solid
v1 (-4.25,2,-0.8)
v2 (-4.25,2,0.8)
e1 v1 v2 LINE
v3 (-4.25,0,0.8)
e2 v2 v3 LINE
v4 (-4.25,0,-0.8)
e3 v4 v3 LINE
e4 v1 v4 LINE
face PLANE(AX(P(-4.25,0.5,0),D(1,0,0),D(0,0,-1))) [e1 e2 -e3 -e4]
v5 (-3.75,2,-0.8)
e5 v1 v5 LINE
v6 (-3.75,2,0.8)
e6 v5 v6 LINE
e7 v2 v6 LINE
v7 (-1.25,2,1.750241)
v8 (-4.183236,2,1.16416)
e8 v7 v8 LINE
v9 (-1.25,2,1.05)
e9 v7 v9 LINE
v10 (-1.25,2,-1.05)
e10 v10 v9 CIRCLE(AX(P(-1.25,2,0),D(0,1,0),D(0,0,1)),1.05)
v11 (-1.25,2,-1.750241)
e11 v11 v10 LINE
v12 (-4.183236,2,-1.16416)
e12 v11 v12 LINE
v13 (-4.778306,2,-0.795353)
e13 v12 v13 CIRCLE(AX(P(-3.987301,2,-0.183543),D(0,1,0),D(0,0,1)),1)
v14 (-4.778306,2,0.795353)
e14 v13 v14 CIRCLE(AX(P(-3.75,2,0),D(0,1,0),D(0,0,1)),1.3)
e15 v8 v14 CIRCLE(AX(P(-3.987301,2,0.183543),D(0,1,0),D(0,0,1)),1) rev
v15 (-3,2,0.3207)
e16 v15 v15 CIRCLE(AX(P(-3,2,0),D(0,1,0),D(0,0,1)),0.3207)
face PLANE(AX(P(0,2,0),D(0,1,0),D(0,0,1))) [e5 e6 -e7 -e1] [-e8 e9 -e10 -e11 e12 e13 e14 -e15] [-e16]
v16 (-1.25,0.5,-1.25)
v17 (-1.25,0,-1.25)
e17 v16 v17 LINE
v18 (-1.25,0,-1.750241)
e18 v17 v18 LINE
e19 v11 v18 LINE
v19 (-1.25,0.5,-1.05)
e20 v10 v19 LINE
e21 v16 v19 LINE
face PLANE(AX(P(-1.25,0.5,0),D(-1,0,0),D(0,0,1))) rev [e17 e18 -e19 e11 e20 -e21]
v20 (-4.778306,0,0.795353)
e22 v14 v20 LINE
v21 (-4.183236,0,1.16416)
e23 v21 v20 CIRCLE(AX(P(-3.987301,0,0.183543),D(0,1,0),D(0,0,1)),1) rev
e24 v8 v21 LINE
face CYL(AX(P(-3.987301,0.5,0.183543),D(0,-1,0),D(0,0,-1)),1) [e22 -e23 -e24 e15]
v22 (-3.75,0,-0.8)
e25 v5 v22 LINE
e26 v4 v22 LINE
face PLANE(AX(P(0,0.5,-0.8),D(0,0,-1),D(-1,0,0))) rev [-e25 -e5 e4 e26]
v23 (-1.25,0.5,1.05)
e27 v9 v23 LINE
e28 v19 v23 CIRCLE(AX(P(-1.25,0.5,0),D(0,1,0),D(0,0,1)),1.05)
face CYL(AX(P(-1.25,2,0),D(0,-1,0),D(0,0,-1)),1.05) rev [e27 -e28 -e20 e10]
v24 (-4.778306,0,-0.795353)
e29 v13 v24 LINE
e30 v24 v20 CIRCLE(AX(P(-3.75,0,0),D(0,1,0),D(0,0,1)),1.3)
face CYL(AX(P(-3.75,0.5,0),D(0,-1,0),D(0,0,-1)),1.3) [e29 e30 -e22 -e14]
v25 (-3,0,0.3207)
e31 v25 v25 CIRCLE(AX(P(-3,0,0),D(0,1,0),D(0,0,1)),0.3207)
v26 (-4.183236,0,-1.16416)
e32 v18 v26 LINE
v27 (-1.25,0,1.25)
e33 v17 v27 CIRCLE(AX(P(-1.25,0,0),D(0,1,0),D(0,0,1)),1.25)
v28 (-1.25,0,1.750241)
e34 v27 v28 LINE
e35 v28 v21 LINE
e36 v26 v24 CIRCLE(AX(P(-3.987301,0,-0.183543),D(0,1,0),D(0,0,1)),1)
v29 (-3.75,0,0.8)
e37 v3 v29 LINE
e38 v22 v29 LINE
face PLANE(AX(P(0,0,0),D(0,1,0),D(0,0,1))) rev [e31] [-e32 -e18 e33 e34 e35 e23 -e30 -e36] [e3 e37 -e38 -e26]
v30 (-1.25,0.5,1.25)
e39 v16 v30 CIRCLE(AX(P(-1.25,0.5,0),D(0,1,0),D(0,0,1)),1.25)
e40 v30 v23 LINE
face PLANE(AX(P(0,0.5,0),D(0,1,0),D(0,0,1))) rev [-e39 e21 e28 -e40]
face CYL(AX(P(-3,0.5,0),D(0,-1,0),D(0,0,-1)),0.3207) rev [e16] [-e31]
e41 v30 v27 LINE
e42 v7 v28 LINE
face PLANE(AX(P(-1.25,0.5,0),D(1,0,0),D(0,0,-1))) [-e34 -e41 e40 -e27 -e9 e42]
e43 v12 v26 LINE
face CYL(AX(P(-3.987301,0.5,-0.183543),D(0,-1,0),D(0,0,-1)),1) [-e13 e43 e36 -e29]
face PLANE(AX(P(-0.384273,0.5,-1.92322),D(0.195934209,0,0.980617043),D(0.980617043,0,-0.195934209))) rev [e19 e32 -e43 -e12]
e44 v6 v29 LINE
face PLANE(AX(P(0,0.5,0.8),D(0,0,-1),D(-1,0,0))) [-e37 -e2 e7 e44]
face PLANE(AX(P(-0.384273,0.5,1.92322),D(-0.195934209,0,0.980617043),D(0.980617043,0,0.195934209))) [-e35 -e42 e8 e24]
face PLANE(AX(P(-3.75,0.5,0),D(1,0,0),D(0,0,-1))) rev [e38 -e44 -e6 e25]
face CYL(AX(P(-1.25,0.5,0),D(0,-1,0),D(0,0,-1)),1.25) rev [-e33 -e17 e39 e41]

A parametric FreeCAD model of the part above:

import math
import FreeCAD as App
import Part
import Sketcher
from FreeCAD import Vector
Q = App.Units.Quantity


def add_polygon(sketch, points):
    """Adds a closed chain of lines whose ends are joined by coincident constraints."""
    first, n = sketch.GeometryCount, len(points)
    for a, b in zip(points, points[1:] + points[:1]):
        sketch.addGeometry(Part.LineSegment(App.Vector(*a, 0), App.Vector(*b, 0)), False)
    for i in range(n):
        sketch.addConstraint(Sketcher.Constraint("Coincident", first + i, 2, first + (i + 1) % n, 1))

doc = App.newDocument("Part")
body = doc.addObject("PartDesign::Body", "Body")

# Sketch on XZ plane
sketch1 = body.newObject("Sketcher::SketchObject", "Sketch")
sketch1.AttachmentSupport = (doc.getObject("XZ_Plane"), [""])
sketch1.MapMode = "FlatFace"
sketch1.addGeometry(Part.LineSegment(Vector(-1.25, -1.25, 0), Vector(-1.25, -1.750241, 0)), False)  # 0
sketch1.addGeometry(Part.LineSegment(Vector(-1.25, -1.750241, 0), Vector(-4.183236, -1.16416, 0)), False)  # 1
sketch1.addGeometry(Part.ArcOfCircle(Part.Circle(Vector(-3.987301, -0.183543, 0), Vector(0, 0, 1), 1), math.radians(-142.279524), math.radians(-101.299303)), False)  # 2
sketch1.addGeometry(Part.ArcOfCircle(Part.Circle(Vector(-3.75, 0, 0), Vector(0, 0, 1), 1.3), math.radians(142.279524), math.radians(217.720476)), False)  # 3
sketch1.addGeometry(Part.ArcOfCircle(Part.Circle(Vector(-3.987301, 0.183543, 0), Vector(0, 0, 1), 1), math.radians(101.299303), math.radians(142.279524)), False)  # 4
sketch1.addGeometry(Part.LineSegment(Vector(-4.183236, 1.16416, 0), Vector(-1.25, 1.750241, 0)), False)  # 5
sketch1.addGeometry(Part.LineSegment(Vector(-1.25, 1.750241, 0), Vector(-1.25, 1.25, 0)), False)  # 6
sketch1.addGeometry(Part.ArcOfCircle(Part.Circle(Vector(-1.25, 0, 0), Vector(0, 0, 1), 1.25), math.radians(90), math.radians(270)), False)  # 7
add_polygon(sketch1, [(-3.75, 0.8), (-4.25, 0.8), (-4.25, -0.8), (-3.75, -0.8)])  # lines 8-11
sketch1.addGeometry(Part.Circle(Vector(-3, 0, 0), Vector(0, 0, 1), 0.3207), False)  # 12
sketch1.addConstraint([
    Sketcher.Constraint("Coincident", 0, 2, 1, 1),
    Sketcher.Constraint("Tangent", 1, 2, 2, 2),
    Sketcher.Constraint("Tangent", 2, 1, 3, 2),
    Sketcher.Constraint("Tangent", 3, 1, 4, 2),
    Sketcher.Constraint("Tangent", 4, 1, 5, 1),
    Sketcher.Constraint("Coincident", 5, 2, 6, 1),
    Sketcher.Constraint("Coincident", 6, 2, 7, 1),
    Sketcher.Constraint("Coincident", 7, 2, 0, 1),
    Sketcher.Constraint("Vertical", 0),
    Sketcher.Constraint("Vertical", 6),
    Sketcher.Constraint("Horizontal", 8),
    Sketcher.Constraint("Vertical", 9),
    Sketcher.Constraint("Horizontal", 10),
    Sketcher.Constraint("Vertical", 11),
    Sketcher.Constraint("Equal", 2, 4),
    Sketcher.Constraint("Symmetric", 2, 3, 4, 3, -1),
    Sketcher.Constraint("Symmetric", 0, 2, 5, 2, -1),
    Sketcher.Constraint("PointOnObject", 7, 3, -1),
    Sketcher.Constraint("PointOnObject", 12, 3, -1),
    Sketcher.Constraint("Vertical", 7, 3, 0, 2),
    Sketcher.Constraint("Vertical", 3, 3, 10, 2),
    Sketcher.Constraint("Radius", 2, Q("1 mm")),
    Sketcher.Constraint("Radius", 3, Q("1.3 mm")),
    Sketcher.Constraint("Radius", 7, Q("1.25 mm")),
    Sketcher.Constraint("DistanceX", 8, 2, 8, 1, Q("0.5 mm")),
    Sketcher.Constraint("DistanceY", 9, 2, 9, 1, Q("1.6 mm")),
    Sketcher.Constraint("DistanceX", 12, 3, -1, 1, Q("3 mm")),
    Sketcher.Constraint("Diameter", 12, Q("0.6414 mm")),
    Sketcher.Constraint("DistanceY", -1, 1, 8, 2, Q("0.8 mm")),
    Sketcher.Constraint("DistanceX", 3, 3, 7, 3, Q("2.5 mm")),
    Sketcher.Constraint("DistanceX", 3, 3, -1, 1, Q("3.75 mm")),
    Sketcher.Constraint("DistanceY", 0, 2, 0, 1, Q("0.500241 mm")),
    Sketcher.Constraint("DistanceX", 2, 3, -1, 1, Q("3.987301 mm")),
])
pad1 = body.newObject("PartDesign::Pad", "Pad")
pad1.Profile = sketch1
pad1.Length = 0.5
pad1.Reversed = True

# Sketch on XZ plane
sketch2 = body.newObject("Sketcher::SketchObject", "Sketch001")
sketch2.AttachmentSupport = (doc.getObject("XZ_Plane"), [""])
sketch2.MapMode = "FlatFace"
sketch2.AttachmentOffset = App.Placement(Vector(0, 0, -0.5), App.Rotation())
sketch2.addGeometry(Part.LineSegment(Vector(-1.25, -1.05, 0), Vector(-1.25, -1.750241, 0)), False)  # 0
sketch2.addGeometry(Part.LineSegment(Vector(-1.25, -1.750241, 0), Vector(-4.183236, -1.16416, 0)), False)  # 1
sketch2.addGeometry(Part.ArcOfCircle(Part.Circle(Vector(-3.987301, -0.183543, 0), Vector(0, 0, 1), 1), math.radians(-142.279524), math.radians(-101.299303)), False)  # 2
sketch2.addGeometry(Part.ArcOfCircle(Part.Circle(Vector(-3.75, 0, 0), Vector(0, 0, 1), 1.3), math.radians(142.279524), math.radians(217.720476)), False)  # 3
sketch2.addGeometry(Part.ArcOfCircle(Part.Circle(Vector(-3.987301, 0.183543, 0), Vector(0, 0, 1), 1), math.radians(101.299303), math.radians(142.279524)), False)  # 4
sketch2.addGeometry(Part.LineSegment(Vector(-4.183236, 1.16416, 0), Vector(-1.25, 1.750241, 0)), False)  # 5
sketch2.addGeometry(Part.LineSegment(Vector(-1.25, 1.750241, 0), Vector(-1.25, 1.05, 0)), False)  # 6
sketch2.addGeometry(Part.ArcOfCircle(Part.Circle(Vector(-1.25, 0, 0), Vector(0, 0, 1), 1.05), math.radians(90), math.radians(270)), False)  # 7
sketch2.addGeometry(Part.Circle(Vector(-3, 0, 0), Vector(0, 0, 1), 0.3207), False)  # 8
add_polygon(sketch2, [(-3.75, 0.8), (-4.25, 0.8), (-4.25, -0.8), (-3.75, -0.8)])  # lines 9-12
sketch2.addConstraint([
    Sketcher.Constraint("Coincident", 0, 2, 1, 1),
    Sketcher.Constraint("Tangent", 1, 2, 2, 2),
    Sketcher.Constraint("Tangent", 2, 1, 3, 2),
    Sketcher.Constraint("Tangent", 3, 1, 4, 2),
    Sketcher.Constraint("Tangent", 4, 1, 5, 1),
    Sketcher.Constraint("Coincident", 5, 2, 6, 1),
    Sketcher.Constraint("Coincident", 6, 2, 7, 1),
    Sketcher.Constraint("Coincident", 7, 2, 0, 1),
    Sketcher.Constraint("Vertical", 0),
    Sketcher.Constraint("Vertical", 6),
    Sketcher.Constraint("Horizontal", 9),
    Sketcher.Constraint("Vertical", 10),
    Sketcher.Constraint("Horizontal", 11),
    Sketcher.Constraint("Vertical", 12),
    Sketcher.Constraint("Equal", 2, 4),
    Sketcher.Constraint("Symmetric", 2, 3, 4, 3, -1),
    Sketcher.Constraint("Symmetric", 0, 2, 5, 2, -1),
    Sketcher.Constraint("PointOnObject", 7, 3, -1),
    Sketcher.Constraint("PointOnObject", 8, 3, -1),
    Sketcher.Constraint("Vertical", 7, 3, 0, 2),
    Sketcher.Constraint("Vertical", 3, 3, 11, 2),
    Sketcher.Constraint("Radius", 2, Q("1 mm")),
    Sketcher.Constraint("Radius", 3, Q("1.3 mm")),
    Sketcher.Constraint("Radius", 7, Q("1.05 mm")),
    Sketcher.Constraint("DistanceX", 9, 2, 9, 1, Q("0.5 mm")),
    Sketcher.Constraint("DistanceY", 10, 2, 10, 1, Q("1.6 mm")),
    Sketcher.Constraint("DistanceX", 8, 3, -1, 1, Q("3 mm")),
    Sketcher.Constraint("Diameter", 8, Q("0.6414 mm")),
    Sketcher.Constraint("DistanceY", -1, 1, 9, 2, Q("0.8 mm")),
    Sketcher.Constraint("DistanceX", 3, 3, 7, 3, Q("2.5 mm")),
    Sketcher.Constraint("DistanceX", 3, 3, -1, 1, Q("3.75 mm")),
    Sketcher.Constraint("DistanceY", 0, 2, 0, 1, Q("0.700241 mm")),
    Sketcher.Constraint("DistanceX", 2, 3, -1, 1, Q("3.987301 mm")),
])
pad2 = body.newObject("PartDesign::Pad", "Pad001")
pad2.Profile = sketch2
pad2.Length = 1.5
pad2.Reversed = True

doc.recompute()
